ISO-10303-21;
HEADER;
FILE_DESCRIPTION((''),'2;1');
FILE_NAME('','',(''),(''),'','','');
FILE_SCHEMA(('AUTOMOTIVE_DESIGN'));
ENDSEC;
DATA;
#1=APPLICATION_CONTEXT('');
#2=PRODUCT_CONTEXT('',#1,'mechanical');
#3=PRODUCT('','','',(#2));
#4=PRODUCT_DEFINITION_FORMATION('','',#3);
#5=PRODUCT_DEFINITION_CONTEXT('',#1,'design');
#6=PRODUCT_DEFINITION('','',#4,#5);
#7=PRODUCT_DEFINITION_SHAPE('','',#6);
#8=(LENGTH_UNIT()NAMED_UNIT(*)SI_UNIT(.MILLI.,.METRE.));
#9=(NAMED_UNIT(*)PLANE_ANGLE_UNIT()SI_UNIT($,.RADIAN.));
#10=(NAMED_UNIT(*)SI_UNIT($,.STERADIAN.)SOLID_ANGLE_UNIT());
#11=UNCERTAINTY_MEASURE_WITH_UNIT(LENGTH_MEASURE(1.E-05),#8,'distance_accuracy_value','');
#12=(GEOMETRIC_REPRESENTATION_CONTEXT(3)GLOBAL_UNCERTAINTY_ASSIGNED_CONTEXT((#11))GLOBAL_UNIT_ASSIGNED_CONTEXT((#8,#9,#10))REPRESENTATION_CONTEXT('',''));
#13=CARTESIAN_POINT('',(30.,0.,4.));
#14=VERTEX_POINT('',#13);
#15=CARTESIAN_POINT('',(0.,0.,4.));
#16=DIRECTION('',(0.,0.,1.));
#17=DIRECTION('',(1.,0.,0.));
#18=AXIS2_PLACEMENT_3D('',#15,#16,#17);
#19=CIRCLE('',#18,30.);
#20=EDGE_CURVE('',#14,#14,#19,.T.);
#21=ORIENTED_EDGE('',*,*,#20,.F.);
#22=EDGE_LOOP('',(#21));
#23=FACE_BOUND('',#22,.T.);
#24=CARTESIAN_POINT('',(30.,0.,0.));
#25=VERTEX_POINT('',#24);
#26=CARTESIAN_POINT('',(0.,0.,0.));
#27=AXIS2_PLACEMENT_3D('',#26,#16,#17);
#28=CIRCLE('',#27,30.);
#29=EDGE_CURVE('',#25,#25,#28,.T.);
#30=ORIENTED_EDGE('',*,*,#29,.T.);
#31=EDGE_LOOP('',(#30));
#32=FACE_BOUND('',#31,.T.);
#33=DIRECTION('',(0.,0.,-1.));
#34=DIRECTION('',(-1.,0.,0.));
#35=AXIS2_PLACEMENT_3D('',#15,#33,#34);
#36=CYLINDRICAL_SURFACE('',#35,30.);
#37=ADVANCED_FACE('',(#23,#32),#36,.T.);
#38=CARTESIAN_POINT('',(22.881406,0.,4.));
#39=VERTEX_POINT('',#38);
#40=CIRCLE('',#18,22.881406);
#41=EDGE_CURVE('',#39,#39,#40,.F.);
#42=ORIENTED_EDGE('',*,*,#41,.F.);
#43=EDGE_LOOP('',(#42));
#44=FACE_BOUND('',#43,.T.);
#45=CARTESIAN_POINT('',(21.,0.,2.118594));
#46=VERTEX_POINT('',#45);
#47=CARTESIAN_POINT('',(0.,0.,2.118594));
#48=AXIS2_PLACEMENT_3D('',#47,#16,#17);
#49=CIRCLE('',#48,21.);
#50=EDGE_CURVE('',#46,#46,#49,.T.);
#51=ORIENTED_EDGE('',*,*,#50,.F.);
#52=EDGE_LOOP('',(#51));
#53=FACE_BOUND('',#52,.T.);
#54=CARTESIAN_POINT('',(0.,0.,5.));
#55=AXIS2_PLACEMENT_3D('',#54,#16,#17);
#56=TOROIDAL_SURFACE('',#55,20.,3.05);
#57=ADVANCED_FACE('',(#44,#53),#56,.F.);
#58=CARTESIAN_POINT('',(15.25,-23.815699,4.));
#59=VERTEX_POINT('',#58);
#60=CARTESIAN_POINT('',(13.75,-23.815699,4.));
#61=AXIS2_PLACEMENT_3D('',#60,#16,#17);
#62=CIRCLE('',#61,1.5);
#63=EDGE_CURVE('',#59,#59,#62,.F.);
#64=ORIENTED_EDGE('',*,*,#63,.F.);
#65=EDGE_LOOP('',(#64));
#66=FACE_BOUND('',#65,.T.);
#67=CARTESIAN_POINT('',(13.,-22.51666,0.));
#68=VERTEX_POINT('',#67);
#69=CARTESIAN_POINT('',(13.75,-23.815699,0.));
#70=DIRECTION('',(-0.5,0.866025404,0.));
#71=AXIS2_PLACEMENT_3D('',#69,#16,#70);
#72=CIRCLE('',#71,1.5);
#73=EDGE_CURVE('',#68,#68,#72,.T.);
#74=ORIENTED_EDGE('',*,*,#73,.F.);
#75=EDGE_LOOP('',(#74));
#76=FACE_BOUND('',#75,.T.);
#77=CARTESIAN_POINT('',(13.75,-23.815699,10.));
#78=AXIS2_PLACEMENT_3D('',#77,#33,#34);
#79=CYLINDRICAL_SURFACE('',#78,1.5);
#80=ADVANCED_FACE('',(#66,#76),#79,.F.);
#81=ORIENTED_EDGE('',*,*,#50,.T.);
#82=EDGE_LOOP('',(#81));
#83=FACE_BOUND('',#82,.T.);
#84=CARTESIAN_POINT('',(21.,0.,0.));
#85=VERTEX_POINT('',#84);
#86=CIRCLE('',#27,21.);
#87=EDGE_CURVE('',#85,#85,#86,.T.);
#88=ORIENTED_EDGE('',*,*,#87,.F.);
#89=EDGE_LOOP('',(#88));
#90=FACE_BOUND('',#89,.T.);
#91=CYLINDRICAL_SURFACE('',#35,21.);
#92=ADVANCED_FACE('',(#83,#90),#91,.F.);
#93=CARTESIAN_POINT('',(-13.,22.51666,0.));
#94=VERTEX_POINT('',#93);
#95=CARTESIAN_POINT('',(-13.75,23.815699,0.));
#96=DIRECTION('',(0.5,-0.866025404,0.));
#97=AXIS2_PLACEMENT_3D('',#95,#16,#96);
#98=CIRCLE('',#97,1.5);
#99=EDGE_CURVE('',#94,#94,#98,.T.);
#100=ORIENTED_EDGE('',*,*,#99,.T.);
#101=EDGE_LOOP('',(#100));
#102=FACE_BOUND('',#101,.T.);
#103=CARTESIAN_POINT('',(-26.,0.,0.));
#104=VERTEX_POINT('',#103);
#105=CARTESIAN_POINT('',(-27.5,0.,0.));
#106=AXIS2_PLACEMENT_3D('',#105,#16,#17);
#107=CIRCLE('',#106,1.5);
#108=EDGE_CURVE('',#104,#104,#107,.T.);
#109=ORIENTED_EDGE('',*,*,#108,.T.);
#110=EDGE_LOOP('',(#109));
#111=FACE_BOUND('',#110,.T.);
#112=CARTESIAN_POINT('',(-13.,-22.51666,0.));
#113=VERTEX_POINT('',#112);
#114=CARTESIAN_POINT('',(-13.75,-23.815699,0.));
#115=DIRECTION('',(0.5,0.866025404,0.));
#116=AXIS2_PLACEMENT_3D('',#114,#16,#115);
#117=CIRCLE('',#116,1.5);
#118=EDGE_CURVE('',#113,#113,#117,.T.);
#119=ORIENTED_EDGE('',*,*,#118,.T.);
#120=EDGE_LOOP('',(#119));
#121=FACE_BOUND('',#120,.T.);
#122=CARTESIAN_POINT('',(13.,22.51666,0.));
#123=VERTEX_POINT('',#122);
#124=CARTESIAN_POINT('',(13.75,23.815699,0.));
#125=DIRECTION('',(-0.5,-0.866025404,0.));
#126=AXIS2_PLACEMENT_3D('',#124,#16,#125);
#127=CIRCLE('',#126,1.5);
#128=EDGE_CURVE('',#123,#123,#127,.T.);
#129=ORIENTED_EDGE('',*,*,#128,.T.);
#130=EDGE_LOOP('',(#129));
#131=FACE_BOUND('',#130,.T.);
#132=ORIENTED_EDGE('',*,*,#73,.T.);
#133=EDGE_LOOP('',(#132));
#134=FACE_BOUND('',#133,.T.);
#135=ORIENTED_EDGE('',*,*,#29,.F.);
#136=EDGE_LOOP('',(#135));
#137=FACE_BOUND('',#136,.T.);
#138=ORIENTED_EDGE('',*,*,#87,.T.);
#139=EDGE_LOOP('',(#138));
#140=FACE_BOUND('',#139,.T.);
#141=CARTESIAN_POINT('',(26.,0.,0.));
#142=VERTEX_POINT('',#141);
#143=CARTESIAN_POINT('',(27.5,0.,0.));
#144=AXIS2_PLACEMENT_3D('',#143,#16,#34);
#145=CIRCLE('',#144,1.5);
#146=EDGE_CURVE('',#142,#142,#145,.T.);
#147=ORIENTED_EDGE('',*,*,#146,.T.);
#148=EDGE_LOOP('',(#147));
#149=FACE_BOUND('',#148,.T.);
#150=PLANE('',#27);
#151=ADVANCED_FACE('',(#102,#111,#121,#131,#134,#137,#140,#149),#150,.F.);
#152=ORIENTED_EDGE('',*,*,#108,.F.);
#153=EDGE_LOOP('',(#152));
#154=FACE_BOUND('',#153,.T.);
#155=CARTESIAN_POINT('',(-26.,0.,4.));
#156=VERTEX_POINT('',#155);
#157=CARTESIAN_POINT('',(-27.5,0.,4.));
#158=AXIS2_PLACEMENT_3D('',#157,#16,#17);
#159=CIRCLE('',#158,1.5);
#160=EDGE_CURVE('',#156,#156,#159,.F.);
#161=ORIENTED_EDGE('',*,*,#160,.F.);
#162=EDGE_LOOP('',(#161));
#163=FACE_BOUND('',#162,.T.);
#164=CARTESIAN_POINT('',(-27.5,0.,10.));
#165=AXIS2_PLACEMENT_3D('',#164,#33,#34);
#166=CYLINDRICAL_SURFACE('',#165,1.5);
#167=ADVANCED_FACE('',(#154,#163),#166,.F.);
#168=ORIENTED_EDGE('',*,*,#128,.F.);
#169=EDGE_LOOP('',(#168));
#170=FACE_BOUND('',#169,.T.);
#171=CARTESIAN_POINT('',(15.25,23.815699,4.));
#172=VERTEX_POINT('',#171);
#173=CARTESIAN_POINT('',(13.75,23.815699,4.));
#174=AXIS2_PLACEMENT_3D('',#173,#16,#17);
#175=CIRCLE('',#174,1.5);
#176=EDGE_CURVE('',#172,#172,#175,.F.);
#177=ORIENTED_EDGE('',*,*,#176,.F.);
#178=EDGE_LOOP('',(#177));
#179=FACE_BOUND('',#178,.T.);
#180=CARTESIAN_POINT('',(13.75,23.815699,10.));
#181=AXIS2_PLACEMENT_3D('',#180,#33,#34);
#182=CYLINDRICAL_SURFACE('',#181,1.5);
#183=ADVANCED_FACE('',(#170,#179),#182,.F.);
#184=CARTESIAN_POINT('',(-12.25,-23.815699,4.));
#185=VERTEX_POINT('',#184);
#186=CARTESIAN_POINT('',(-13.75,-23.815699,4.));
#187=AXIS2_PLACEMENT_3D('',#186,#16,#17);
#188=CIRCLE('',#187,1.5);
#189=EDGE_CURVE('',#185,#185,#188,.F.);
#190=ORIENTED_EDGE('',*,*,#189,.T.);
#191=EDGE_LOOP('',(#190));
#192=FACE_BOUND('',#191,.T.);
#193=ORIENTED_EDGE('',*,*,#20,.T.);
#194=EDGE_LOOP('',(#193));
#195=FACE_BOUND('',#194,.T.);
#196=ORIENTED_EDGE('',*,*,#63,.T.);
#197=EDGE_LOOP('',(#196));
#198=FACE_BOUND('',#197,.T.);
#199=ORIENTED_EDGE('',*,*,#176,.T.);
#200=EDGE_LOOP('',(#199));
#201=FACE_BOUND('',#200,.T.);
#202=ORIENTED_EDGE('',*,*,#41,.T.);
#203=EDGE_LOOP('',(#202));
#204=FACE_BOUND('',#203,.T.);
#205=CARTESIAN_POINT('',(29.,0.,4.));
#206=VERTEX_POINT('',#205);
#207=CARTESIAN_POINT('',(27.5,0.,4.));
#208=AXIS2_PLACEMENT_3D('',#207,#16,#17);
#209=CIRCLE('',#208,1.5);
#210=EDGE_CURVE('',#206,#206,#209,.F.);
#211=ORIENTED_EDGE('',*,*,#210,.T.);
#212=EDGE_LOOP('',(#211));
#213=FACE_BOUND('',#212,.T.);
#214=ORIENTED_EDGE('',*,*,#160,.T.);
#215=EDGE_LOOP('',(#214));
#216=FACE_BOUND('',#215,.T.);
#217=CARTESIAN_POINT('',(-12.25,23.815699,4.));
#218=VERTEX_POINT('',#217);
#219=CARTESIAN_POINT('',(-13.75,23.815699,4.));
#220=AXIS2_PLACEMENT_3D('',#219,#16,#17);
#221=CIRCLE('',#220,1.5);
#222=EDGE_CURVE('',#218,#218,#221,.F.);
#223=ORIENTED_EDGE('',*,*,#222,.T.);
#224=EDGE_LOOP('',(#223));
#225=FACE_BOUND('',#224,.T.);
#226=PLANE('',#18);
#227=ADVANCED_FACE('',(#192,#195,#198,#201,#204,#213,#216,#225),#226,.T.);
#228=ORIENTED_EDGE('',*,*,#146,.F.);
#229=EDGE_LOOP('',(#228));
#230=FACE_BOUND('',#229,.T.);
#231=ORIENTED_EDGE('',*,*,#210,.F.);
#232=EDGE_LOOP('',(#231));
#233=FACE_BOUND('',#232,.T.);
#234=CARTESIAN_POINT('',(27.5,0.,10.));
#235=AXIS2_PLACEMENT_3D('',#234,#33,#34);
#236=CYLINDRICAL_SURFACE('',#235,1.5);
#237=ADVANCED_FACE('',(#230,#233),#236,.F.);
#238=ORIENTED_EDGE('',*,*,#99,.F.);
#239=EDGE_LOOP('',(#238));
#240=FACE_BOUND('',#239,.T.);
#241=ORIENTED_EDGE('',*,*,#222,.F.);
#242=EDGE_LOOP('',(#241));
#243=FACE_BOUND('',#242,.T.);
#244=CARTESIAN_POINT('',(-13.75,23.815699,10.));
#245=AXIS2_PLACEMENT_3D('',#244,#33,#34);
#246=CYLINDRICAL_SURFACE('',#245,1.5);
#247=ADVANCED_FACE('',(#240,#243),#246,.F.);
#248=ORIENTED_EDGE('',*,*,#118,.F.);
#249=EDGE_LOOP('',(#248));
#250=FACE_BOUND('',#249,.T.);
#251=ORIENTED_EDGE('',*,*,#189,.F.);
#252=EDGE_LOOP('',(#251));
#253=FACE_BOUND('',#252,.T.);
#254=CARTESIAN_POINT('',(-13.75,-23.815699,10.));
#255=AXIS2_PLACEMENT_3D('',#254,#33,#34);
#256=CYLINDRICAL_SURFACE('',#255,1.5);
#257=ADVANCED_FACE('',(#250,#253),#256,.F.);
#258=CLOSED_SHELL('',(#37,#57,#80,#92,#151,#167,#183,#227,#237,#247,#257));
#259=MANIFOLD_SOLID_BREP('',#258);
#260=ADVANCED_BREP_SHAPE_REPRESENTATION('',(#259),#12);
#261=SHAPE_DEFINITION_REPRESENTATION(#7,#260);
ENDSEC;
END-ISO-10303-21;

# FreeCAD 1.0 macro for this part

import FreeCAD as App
import Part
import Sketcher
Q = App.Units.Quantity

doc = App.newDocument("Part")
body = doc.addObject("PartDesign::Body", "Body")

# Sketch on XY plane
sketch1 = body.newObject("Sketcher::SketchObject", "Sketch")
sketch1.AttachmentSupport = (doc.getObject("XY_Plane"), [""])
sketch1.MapMode = "FlatFace"
sketch1.addGeometry([
    Part.Circle(App.Vector(0, 0, 0), App.Vector(0, 0, 1), 30),
    Part.Circle(App.Vector(0, 0, 0), App.Vector(0, 0, 1), 21),
], False)
sketch1.addConstraint([
    Sketcher.Constraint("Coincident", 0, 3, -1, 1),
    Sketcher.Constraint("Coincident", 1, 3, -1, 1),
    Sketcher.Constraint("Diameter", 0, Q("60 mm")),
    Sketcher.Constraint("Diameter", 1, Q("42 mm")),
])
pad1 = body.newObject("PartDesign::Pad", "Pad")
pad1.Profile = sketch1
pad1.Length = 4

# Sketch on YZ plane
sketch2 = body.newObject("Sketcher::SketchObject", "Sketch001")
sketch2.AttachmentSupport = (doc.getObject("YZ_Plane"), [""])
sketch2.MapMode = "FlatFace"
sketch2.addGeometry(Part.Circle(App.Vector(20, 5, 0), App.Vector(0, 0, 1), 3.05), False)
sketch2.addConstraint([
    Sketcher.Constraint("Diameter", 0, Q("6.1 mm")),
    Sketcher.Constraint("DistanceX", -1, 1, 0, 3, Q("20 mm")),
    Sketcher.Constraint("DistanceY", -1, 1, 0, 3, Q("5 mm")),
])
groove = body.newObject("PartDesign::Groove", "Groove")
groove.Profile = sketch2
groove.ReferenceAxis = (sketch2, ["V_Axis"])
groove.Angle = 360

# Sketch on XY plane
sketch3 = body.newObject("Sketcher::SketchObject", "Sketch002")
sketch3.AttachmentSupport = (doc.getObject("XY_Plane"), [""])
sketch3.MapMode = "FlatFace"
sketch3.addGeometry(Part.Circle(App.Vector(-27.5, 0, 0), App.Vector(0, 0, 1), 1.5), False)
sketch3.addConstraint([
    Sketcher.Constraint("PointOnObject", 0, 3, -1),
    Sketcher.Constraint("Diameter", 0, Q("3 mm")),
    Sketcher.Constraint("DistanceX", 0, 3, -1, 1, Q("27.5 mm")),
])
pocket1 = body.newObject("PartDesign::Pocket", "Pocket")
pocket1.Profile = sketch3
pocket1.Length = 10
pocket1.Reversed = True
doc.recompute()

polarpattern = body.newObject("PartDesign::PolarPattern", "PolarPattern")
polarpattern.Originals = [pocket1]
polarpattern.Axis = (doc.getObject("Z_Axis"), [""])
polarpattern.Angle = 360
polarpattern.Occurrences = 6
body.Tip = polarpattern

doc.recompute()
